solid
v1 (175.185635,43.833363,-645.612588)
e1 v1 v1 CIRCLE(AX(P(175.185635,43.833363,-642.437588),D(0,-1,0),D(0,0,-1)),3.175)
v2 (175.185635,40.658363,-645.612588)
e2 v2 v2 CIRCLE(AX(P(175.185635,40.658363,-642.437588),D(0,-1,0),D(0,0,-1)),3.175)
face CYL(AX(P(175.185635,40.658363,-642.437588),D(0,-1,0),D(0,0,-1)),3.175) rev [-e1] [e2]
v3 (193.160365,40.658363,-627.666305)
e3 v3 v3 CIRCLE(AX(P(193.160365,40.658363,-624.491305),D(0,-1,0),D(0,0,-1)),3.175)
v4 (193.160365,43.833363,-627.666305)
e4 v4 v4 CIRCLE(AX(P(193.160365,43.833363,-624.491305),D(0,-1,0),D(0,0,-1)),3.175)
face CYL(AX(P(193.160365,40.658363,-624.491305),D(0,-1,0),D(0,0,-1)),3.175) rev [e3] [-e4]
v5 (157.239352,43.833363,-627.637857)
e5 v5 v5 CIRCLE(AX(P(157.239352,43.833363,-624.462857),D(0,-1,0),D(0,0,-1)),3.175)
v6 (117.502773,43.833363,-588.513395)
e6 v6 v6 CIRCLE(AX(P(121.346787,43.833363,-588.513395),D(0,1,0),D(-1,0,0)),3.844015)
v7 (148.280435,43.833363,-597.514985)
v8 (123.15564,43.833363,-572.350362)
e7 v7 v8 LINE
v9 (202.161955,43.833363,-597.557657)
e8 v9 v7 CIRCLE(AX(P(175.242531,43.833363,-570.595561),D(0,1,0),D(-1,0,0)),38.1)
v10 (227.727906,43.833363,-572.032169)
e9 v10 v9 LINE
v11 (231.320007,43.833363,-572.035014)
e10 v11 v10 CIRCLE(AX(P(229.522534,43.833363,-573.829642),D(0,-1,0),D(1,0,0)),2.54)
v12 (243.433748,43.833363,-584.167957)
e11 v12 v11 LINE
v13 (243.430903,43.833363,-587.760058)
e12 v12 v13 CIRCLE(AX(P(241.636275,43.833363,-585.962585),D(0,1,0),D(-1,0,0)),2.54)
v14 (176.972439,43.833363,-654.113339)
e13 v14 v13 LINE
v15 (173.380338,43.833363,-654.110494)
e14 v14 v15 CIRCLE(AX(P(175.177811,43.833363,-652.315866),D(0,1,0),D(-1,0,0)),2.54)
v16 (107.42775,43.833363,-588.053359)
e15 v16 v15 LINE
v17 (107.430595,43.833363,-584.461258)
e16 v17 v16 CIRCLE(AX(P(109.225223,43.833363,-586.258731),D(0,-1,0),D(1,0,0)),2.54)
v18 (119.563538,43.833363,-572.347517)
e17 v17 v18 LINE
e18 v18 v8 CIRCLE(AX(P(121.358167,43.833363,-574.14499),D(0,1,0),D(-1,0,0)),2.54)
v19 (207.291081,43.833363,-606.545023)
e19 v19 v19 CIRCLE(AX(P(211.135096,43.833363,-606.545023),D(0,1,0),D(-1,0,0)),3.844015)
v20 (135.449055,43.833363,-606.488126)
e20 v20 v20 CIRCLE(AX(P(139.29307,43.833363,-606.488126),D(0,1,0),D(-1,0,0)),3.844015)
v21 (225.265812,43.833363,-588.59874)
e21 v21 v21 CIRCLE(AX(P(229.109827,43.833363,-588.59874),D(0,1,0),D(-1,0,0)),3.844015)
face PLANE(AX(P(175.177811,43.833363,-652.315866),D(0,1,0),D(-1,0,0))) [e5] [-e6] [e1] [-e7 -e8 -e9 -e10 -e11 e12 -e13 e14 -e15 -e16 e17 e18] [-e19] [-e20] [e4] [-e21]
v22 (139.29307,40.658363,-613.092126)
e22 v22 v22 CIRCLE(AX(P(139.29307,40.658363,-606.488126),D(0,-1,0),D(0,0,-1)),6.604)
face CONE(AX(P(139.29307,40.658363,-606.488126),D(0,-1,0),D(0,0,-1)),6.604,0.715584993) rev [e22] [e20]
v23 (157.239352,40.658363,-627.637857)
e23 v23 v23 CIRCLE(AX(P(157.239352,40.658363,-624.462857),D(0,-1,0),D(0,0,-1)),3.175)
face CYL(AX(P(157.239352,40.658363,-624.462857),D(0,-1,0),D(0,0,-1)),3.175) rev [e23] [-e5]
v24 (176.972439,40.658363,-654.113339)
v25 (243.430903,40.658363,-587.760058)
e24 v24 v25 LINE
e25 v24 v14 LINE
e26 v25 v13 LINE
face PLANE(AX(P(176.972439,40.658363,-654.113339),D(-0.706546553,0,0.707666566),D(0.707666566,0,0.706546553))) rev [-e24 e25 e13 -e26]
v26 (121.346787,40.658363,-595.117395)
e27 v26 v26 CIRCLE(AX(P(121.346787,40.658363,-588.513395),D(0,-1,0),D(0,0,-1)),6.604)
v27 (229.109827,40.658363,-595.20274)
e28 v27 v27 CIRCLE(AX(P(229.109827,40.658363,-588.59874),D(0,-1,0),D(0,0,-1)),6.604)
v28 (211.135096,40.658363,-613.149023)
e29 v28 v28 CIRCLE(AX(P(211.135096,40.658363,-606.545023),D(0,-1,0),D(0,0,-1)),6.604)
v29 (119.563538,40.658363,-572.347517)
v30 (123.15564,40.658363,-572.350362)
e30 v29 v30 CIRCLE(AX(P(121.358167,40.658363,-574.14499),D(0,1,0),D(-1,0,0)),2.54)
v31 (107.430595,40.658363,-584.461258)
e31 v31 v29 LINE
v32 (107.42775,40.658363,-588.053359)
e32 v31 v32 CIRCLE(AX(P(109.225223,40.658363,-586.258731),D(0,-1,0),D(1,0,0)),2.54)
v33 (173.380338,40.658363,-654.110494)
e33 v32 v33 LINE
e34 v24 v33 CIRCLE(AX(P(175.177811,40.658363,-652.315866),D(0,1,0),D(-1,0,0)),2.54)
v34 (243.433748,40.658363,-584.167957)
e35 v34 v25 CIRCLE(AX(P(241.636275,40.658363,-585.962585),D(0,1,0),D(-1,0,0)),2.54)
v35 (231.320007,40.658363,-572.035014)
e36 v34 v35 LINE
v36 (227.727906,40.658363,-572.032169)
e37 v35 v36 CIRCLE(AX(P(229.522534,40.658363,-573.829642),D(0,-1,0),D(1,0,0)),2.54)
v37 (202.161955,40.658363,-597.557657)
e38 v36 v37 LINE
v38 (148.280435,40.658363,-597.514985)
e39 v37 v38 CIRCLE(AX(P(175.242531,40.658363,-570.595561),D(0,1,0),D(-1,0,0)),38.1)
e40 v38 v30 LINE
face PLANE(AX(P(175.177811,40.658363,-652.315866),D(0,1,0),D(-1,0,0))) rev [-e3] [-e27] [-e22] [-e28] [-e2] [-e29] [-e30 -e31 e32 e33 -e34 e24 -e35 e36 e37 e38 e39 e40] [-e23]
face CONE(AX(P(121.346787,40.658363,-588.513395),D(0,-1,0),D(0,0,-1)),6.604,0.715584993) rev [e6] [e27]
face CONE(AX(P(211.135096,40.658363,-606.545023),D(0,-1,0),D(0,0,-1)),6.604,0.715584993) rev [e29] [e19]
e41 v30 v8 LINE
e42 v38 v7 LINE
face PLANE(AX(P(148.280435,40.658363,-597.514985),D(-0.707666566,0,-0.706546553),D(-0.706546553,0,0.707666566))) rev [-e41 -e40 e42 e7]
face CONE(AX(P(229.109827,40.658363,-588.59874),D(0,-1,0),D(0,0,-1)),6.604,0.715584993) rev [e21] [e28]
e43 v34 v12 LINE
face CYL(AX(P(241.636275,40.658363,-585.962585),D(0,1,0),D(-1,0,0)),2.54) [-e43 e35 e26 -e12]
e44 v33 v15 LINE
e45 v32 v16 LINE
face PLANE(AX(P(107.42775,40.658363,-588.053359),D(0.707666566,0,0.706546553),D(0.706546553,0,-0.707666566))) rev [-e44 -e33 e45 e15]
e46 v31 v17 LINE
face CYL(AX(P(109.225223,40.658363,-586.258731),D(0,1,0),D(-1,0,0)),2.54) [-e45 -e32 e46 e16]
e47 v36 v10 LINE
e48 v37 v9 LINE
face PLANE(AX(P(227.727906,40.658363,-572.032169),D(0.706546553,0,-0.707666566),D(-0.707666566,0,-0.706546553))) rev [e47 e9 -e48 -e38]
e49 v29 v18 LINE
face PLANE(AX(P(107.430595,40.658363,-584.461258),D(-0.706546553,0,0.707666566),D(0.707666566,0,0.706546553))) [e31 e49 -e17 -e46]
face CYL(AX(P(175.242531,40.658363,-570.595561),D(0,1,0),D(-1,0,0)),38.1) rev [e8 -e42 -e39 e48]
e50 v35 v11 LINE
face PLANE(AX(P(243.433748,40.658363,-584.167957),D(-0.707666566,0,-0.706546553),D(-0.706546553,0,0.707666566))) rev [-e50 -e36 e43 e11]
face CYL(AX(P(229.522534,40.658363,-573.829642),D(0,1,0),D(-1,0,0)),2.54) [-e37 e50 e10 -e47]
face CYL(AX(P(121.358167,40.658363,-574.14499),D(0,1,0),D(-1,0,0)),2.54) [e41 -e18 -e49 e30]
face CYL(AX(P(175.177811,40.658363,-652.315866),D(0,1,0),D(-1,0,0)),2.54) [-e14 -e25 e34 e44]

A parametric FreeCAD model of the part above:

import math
import FreeCAD as App
import Part
import Sketcher
from FreeCAD import Vector
Q = App.Units.Quantity

doc = App.newDocument("Part")
params = doc.addObject("Spreadsheet::Sheet", "Params")
for row, (alias, value) in enumerate([
    ("sketch1_radius", "0.1 in"),
    ("sketch1_radius2", "1.5 in"),
    ("sketch1_length", "1.4 in"),
    ("sketch1_length2", "0.675 in"),
    ("pad1_length", "0.125 in"),
    ("sketch2_diameter", "0.25 in"),
    ("hole_diameter", "0.25 in"),
    ("sketch3_height", "0.26 in"),
    ("sketch3_width", "0.125 in"),
    ("groove_angle", "360 deg"),
    ("linearpattern_pitch", "1 in"),
    ("linearpattern2_pitch", "71.842049 mm"),
    ("linearpattern3_pitch", "91.581002 mm"),
], start=1):
    params.set(f"A{row}", alias)
    params.set(f"B{row}", "=" + value)
    params.setAlias(f"B{row}", alias)

body = doc.addObject("PartDesign::Body", "Body")

# Sketch on XZ plane
sketch1 = body.newObject("Sketcher::SketchObject", "Sketch")
sketch1.AttachmentSupport = (doc.getObject("XZ_Plane"), [""])
sketch1.MapMode = "FlatFace"
sketch1.AttachmentOffset = App.Placement(Vector(0, 0, -43.833363), App.Rotation())
sketch1.addGeometry([
    Part.LineSegment(Vector(177, -654.1, 0), Vector(243.4, -587.8, 0)),  # 0
    Part.ArcOfCircle(Part.Circle(Vector(241.6, -586, 0), Vector(0, 0, 1), 2.5), math.radians(-45), math.radians(45)),  # 1
    Part.LineSegment(Vector(243.4, -584.2, 0), Vector(231.3, -572, 0)),  # 2
    Part.ArcOfCircle(Part.Circle(Vector(229.5, -573.8, 0), Vector(0, 0, 1), 2.5), math.radians(45), math.radians(135)),  # 3
    Part.LineSegment(Vector(227.7, -572, 0), Vector(202.2, -597.6, 0)),  # 4
    Part.ArcOfCircle(Part.Circle(Vector(175.2, -570.6, 0), Vector(0, 0, 1), 38.1), math.radians(-135), math.radians(-45)),  # 5
    Part.LineSegment(Vector(148.3, -597.5, 0), Vector(123.2, -572.4, 0)),  # 6
    Part.ArcOfCircle(Part.Circle(Vector(121.4, -574.1, 0), Vector(0, 0, 1), 2.5), math.radians(45), math.radians(135)),  # 7
    Part.LineSegment(Vector(119.6, -572.3, 0), Vector(107.4, -584.5, 0)),  # 8
    Part.ArcOfCircle(Part.Circle(Vector(109.2, -586.3, 0), Vector(0, 0, 1), 2.5), math.radians(135), math.radians(225)),  # 9
    Part.LineSegment(Vector(107.4, -588.1, 0), Vector(173.4, -654.1, 0)),  # 10
    Part.ArcOfCircle(Part.Circle(Vector(175.2, -652.3, 0), Vector(0, 0, 1), 2.5), math.radians(-135), math.radians(-45)),  # 11
], False)
sketch1.addConstraint([
    Sketcher.Constraint("Tangent", 0, 2, 1, 1),
    Sketcher.Constraint("Tangent", 1, 2, 2, 1),
    Sketcher.Constraint("Tangent", 2, 2, 3, 1),
    Sketcher.Constraint("Tangent", 3, 2, 4, 1),
    Sketcher.Constraint("Tangent", 4, 2, 5, 2),
    Sketcher.Constraint("Tangent", 5, 1, 6, 1),
    Sketcher.Constraint("Tangent", 6, 2, 7, 1),
    Sketcher.Constraint("Tangent", 7, 2, 8, 1),
    Sketcher.Constraint("Tangent", 8, 2, 9, 1),
    Sketcher.Constraint("Tangent", 9, 2, 10, 1),
    Sketcher.Constraint("Tangent", 10, 2, 11, 1),
    Sketcher.Constraint("Tangent", 11, 2, 0, 1),
    Sketcher.Constraint("Equal", 1, 3),
    Sketcher.Constraint("Equal", 3, 7),
    Sketcher.Constraint("Equal", 7, 9),
    Sketcher.Constraint("Equal", 9, 11),
    Sketcher.Constraint("Perpendicular", 0, 2),
    Sketcher.Constraint("Perpendicular", 2, 4),
    Sketcher.Constraint("Perpendicular", 4, 6),
    Sketcher.Constraint("Perpendicular", 6, 8),
    Sketcher.Constraint("Perpendicular", 8, 10),
    Sketcher.Constraint("Equal", 2, 8),
    Sketcher.Constraint("Radius", 1, Q("0.1 in")),
    Sketcher.Constraint("Radius", 5, Q("1.5 in")),
    Sketcher.Constraint("Distance", 6, Q("1.4 in")),
    Sketcher.Constraint("Distance", 2, Q("0.675 in")),
    Sketcher.Constraint("DistanceY", 4, 2, 5, 3, Q("1.0614998 in")),
    Sketcher.Constraint("DistanceX", -1, 1, 5, 3, 175.242531),
    Sketcher.Constraint("DistanceY", 5, 3, -1, 1, 570.595561),
    Sketcher.Constraint("DistanceY", 0, 2, -1, 1, 587.760058),
])
sketch1.setExpression("Constraints[22]", "Params.sketch1_radius")
sketch1.setExpression("Constraints[23]", "Params.sketch1_radius2")
sketch1.setExpression("Constraints[24]", "Params.sketch1_length")
sketch1.setExpression("Constraints[25]", "Params.sketch1_length2")
pad1 = body.newObject("PartDesign::Pad", "Pad")
pad1.Profile = sketch1
pad1.setExpression("Length", "Params.pad1_length")

# Sketch on XZ plane
sketch2 = body.newObject("Sketcher::SketchObject", "Sketch001")
sketch2.AttachmentSupport = (doc.getObject("XZ_Plane"), [""])
sketch2.MapMode = "FlatFace"
sketch2.AttachmentOffset = App.Placement(Vector(0, 0, -40.658363), App.Rotation())
sketch2.addGeometry([
    Part.Circle(Vector(175.2, -642.4, 0), Vector(0, 0, 1), 3.2),
    Part.Circle(Vector(193.2, -624.5, 0), Vector(0, 0, 1), 3.2),
    Part.Circle(Vector(157.2, -624.5, 0), Vector(0, 0, 1), 3.2),
], False)
sketch2.addConstraint([
    Sketcher.Constraint("Equal", 0, 1),
    Sketcher.Constraint("Equal", 1, 2),
    Sketcher.Constraint("Diameter", 0, Q("0.25 in")),
    Sketcher.Constraint("DistanceX", 0, 3, 1, 3, 17.974731),
    Sketcher.Constraint("DistanceY", 0, 3, 2, 3, 17.974731),
    Sketcher.Constraint("DistanceY", 1, 3, 2, 3, 0.028448),
    Sketcher.Constraint("DistanceX", -1, 1, 0, 3, 175.185635),
    Sketcher.Constraint("DistanceY", 0, 3, -1, 1, 642.437588),
    Sketcher.Constraint("DistanceX", -1, 1, 2, 3, 157.239352),
])
sketch2.setExpression("Constraints[2]", "Params.sketch2_diameter")
doc.recompute()
hole = body.newObject("PartDesign::Hole", "Hole")
hole.Profile = sketch2
hole.ThreadType = "None"
hole.setExpression("Diameter", "Params.hole_diameter")
hole.DepthType = "ThroughAll"

# Sketch on YZ plane
sketch3 = body.newObject("Sketcher::SketchObject", "Sketch002")
sketch3.AttachmentSupport = (doc.getObject("YZ_Plane"), [""])
sketch3.MapMode = "FlatFace"
sketch3.AttachmentOffset = App.Placement(Vector(0, 0, 139.29307), App.Rotation())
sketch3.addGeometry([
    Part.LineSegment(Vector(43.8, -606.5, 0), Vector(40.7, -606.5, 0)),  # 0
    Part.LineSegment(Vector(40.7, -606.5, 0), Vector(40.7, -613.1, 0)),  # 1
    Part.LineSegment(Vector(40.7, -613.1, 0), Vector(44.6, -609.7, 0)),  # 2
    Part.LineSegment(Vector(44.6, -609.7, 0), Vector(43.8, -609.7, 0)),  # 3
    Part.LineSegment(Vector(43.8, -609.7, 0), Vector(43.8, -606.5, 0)),  # 4
], False)
sketch3.addGeometry(Part.LineSegment(Vector(40.7, -606.5, 0), Vector(44.6, -606.5, 0)), True)  # axis
sketch3.addConstraint([
    Sketcher.Constraint("Coincident", 0, 2, 1, 1),
    Sketcher.Constraint("Coincident", 1, 2, 2, 1),
    Sketcher.Constraint("Coincident", 2, 2, 3, 1),
    Sketcher.Constraint("Coincident", 3, 2, 4, 1),
    Sketcher.Constraint("Coincident", 4, 2, 0, 1),
    Sketcher.Constraint("Horizontal", 0),
    Sketcher.Constraint("Vertical", 1),
    Sketcher.Constraint("Horizontal", 3),
    Sketcher.Constraint("Vertical", 4),
    Sketcher.Constraint("Horizontal", 5),
    Sketcher.Constraint("Coincident", 5, 1, 0, 2),
    Sketcher.Constraint("Vertical", 2, 2, 5, 2),
    Sketcher.Constraint("Equal", 0, 4),
    Sketcher.Constraint("Angle", 2, Q("41 deg")),
    Sketcher.Constraint("DistanceY", 1, 2, 1, 1, Q("0.26 in")),
    Sketcher.Constraint("DistanceX", 0, 2, 0, 1, Q("0.125 in")),
    Sketcher.Constraint("DistanceX", -1, 1, 0, 2, 40.658363),
    Sketcher.Constraint("DistanceY", 0, 2, -1, 1, 606.488126),
])
sketch3.setExpression("Constraints[14]", "Params.sketch3_height")
sketch3.setExpression("Constraints[15]", "Params.sketch3_width")
groove = body.newObject("PartDesign::Groove", "Groove")
groove.Profile = sketch3
groove.ReferenceAxis = (sketch3, ["Axis0"])
groove.setExpression("Angle", "Params.groove_angle")
doc.recompute()

datumline = body.newObject("PartDesign::Line", "DatumLine")
datumline.Placement = App.Placement(Vector(0, 0, 0), App.Rotation(Vector(0, 0, 1), Vector(-0.706546553, 0, 0.707666566)))
linearpattern = body.newObject("PartDesign::LinearPattern", "LinearPattern")
linearpattern.Originals = [groove]
linearpattern.Direction = (datumline, [""])
linearpattern.Mode = "offset"
linearpattern.setExpression("Offset", "Params.linearpattern_pitch")
linearpattern.Occurrences = 2
body.Tip = linearpattern
doc.recompute()

datumline2 = body.newObject("PartDesign::Line", "DatumLine001")
datumline2.Placement = App.Placement(Vector(0, 0, 0), App.Rotation(Vector(0, 0, 1), Vector(0.999999686, 0, -0.000791969)))
linearpattern2 = body.newObject("PartDesign::LinearPattern", "LinearPattern001")
linearpattern2.Originals = [groove]
linearpattern2.Direction = (datumline2, [""])
linearpattern2.Mode = "offset"
linearpattern2.setExpression("Offset", "Params.linearpattern2_pitch")
linearpattern2.Occurrences = 2
body.Tip = linearpattern2
doc.recompute()

datumline3 = body.newObject("PartDesign::Line", "DatumLine002")
datumline3.Placement = App.Placement(Vector(0, 0, 0), App.Rotation(Vector(0, 0, 1), Vector(0.980735686, 0, 0.195339484)))
linearpattern3 = body.newObject("PartDesign::LinearPattern", "LinearPattern002")
linearpattern3.Originals = [groove]
linearpattern3.Direction = (datumline3, [""])
linearpattern3.Mode = "offset"
linearpattern3.setExpression("Offset", "Params.linearpattern3_pitch")
linearpattern3.Occurrences = 2
body.Tip = linearpattern3

doc.recompute()
